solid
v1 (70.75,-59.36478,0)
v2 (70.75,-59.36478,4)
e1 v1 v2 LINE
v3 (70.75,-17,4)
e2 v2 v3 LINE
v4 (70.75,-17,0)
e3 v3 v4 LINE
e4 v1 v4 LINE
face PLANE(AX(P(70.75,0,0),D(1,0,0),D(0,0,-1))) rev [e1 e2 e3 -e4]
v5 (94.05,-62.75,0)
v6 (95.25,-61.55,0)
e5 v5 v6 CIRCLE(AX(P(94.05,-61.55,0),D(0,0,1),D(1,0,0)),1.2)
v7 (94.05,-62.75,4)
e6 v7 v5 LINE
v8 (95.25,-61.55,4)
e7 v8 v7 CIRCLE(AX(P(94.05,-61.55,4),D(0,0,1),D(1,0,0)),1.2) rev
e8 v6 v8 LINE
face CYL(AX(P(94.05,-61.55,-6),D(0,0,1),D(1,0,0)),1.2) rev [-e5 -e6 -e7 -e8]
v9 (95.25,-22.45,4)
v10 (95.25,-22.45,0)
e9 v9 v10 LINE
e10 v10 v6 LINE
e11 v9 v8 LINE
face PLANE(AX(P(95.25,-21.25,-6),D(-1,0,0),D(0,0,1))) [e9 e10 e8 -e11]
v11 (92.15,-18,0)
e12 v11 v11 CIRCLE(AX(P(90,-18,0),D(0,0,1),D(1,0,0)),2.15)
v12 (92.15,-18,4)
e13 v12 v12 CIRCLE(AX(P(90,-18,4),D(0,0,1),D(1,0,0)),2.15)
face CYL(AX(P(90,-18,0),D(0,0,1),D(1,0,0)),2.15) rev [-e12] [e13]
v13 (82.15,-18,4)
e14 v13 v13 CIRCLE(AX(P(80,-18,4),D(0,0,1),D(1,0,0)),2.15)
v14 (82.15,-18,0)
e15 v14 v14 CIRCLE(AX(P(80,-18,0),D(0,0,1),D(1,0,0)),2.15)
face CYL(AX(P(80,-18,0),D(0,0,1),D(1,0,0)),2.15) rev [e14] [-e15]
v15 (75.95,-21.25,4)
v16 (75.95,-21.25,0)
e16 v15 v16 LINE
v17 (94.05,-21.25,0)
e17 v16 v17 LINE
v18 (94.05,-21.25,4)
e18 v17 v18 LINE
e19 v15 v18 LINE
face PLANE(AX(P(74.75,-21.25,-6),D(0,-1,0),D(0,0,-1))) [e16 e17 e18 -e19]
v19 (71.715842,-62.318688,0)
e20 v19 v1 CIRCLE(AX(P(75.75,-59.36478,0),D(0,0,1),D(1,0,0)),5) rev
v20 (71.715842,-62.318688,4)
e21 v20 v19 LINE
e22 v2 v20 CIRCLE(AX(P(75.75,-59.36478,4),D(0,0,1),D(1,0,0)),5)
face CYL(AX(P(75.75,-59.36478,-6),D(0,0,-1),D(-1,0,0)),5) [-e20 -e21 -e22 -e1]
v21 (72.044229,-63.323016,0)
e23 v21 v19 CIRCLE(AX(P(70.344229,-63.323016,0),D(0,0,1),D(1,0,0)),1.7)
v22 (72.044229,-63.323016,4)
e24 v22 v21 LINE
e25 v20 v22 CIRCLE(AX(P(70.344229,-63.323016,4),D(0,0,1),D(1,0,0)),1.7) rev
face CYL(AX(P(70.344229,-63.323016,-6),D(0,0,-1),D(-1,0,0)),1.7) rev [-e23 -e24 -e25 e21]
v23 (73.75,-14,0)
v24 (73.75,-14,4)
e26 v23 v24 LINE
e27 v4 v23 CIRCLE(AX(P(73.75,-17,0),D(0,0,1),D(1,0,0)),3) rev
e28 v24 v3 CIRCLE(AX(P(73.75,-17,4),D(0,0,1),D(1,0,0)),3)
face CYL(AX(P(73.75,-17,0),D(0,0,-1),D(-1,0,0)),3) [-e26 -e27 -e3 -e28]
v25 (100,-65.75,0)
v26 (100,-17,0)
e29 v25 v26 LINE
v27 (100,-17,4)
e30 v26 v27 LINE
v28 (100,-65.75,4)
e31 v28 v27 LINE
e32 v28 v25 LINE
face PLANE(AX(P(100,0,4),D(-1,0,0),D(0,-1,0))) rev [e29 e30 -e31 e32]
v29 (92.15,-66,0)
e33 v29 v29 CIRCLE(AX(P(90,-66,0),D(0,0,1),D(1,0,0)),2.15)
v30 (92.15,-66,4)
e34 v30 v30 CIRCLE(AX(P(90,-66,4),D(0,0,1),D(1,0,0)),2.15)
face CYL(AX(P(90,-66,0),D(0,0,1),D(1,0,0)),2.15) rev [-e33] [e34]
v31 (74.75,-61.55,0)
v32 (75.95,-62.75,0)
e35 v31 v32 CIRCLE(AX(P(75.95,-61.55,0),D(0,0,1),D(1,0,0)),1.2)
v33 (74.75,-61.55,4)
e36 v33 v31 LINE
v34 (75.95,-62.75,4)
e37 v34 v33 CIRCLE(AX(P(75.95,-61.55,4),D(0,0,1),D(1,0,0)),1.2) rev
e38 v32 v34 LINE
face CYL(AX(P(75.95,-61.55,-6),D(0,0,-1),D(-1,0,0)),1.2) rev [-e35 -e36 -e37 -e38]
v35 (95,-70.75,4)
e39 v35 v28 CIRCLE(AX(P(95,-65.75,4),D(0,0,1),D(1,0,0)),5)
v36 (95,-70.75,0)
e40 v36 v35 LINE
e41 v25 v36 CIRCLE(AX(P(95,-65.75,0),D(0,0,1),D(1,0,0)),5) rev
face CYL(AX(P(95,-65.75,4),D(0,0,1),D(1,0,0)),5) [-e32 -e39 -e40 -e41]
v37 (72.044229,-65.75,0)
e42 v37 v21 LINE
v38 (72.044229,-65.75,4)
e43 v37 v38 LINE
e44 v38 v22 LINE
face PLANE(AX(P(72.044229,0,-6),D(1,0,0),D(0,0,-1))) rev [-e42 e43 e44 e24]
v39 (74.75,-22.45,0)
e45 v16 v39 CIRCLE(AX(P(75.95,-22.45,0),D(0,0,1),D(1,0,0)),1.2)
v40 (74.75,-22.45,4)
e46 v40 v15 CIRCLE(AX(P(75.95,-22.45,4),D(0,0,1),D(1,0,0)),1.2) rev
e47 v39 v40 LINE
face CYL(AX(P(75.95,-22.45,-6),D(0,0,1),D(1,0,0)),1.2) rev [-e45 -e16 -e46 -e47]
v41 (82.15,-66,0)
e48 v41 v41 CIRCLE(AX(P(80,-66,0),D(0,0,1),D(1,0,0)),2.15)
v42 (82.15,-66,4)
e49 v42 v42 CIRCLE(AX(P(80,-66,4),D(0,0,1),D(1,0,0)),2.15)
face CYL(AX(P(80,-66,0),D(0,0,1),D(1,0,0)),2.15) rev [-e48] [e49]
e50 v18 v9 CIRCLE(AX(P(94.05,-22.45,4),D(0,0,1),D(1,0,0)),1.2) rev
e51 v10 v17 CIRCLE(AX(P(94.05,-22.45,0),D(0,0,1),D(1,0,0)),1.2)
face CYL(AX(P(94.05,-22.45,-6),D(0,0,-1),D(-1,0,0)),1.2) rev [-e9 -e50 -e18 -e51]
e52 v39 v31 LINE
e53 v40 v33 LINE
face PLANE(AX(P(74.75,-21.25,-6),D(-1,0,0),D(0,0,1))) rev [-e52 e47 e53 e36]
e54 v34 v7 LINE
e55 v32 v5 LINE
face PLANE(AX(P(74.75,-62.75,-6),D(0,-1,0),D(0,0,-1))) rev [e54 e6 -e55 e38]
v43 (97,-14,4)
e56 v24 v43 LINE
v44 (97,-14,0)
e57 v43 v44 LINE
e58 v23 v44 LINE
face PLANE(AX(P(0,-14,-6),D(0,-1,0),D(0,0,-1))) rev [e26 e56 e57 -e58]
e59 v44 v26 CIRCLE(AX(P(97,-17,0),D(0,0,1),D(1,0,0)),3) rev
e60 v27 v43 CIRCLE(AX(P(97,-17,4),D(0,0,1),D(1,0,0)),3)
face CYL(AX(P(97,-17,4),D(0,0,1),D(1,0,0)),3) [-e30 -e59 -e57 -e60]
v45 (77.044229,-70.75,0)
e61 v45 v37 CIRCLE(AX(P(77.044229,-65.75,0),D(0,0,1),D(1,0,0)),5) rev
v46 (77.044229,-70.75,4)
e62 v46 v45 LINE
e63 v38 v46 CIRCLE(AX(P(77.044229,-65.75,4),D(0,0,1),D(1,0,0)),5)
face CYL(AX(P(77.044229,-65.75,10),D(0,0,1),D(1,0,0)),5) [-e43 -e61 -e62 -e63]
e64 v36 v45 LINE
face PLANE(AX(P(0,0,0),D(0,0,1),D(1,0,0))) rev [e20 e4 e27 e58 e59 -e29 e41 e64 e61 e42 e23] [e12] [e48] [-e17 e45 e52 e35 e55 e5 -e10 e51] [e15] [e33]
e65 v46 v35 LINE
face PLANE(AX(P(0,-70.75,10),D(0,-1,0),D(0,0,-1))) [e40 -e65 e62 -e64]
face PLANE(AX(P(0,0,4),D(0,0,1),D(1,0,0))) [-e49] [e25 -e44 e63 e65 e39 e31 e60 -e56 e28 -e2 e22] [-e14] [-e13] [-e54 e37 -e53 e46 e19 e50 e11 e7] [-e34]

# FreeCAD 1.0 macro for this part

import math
import FreeCAD as App
import Part
import Sketcher
from FreeCAD import Vector
Q = App.Units.Quantity


def edges_at(feature, points):
    """Names of the edges that pass closest to the given points."""
    edges = feature.Shape.Edges
    near = lambda p: min(range(len(edges)), key=lambda i: edges[i].distToShape(Part.Vertex(*p))[0])
    return sorted({f"Edge{near(p) + 1}" for p in points})

doc = App.newDocument("Part")
body = doc.addObject("PartDesign::Body", "Body")

sketch1 = body.newObject("Sketcher::SketchObject", "Sketch")
sketch1.AttachmentSupport = (doc.getObject("XY_Plane"), [""])
sketch1.MapMode = "FlatFace"
sketch1.addGeometry([
    Part.LineSegment(Vector(0, 0, 0), Vector(0, -100, 0)),
    Part.LineSegment(Vector(0, -100, 0), Vector(100, -100, 0)),
    Part.LineSegment(Vector(100, -100, 0), Vector(100, 0, 0)),
    Part.LineSegment(Vector(100, 0, 0), Vector(0, 0, 0)),
], False)
sketch1.addConstraint([
    Sketcher.Constraint("Coincident", 0, 2, 1, 1),
    Sketcher.Constraint("Coincident", 1, 2, 2, 1),
    Sketcher.Constraint("Coincident", 2, 2, 3, 1),
    Sketcher.Constraint("Coincident", 3, 2, 0, 1),
    Sketcher.Constraint("Vertical", 0),
    Sketcher.Constraint("Horizontal", 1),
    Sketcher.Constraint("Vertical", 2),
    Sketcher.Constraint("Horizontal", 3),
    Sketcher.Constraint("Coincident", 3, 2, -1, 1),
    Sketcher.Constraint("Equal", 3, 0),
    Sketcher.Constraint("DistanceX", 1, 1, 1, 2, Q("100 mm")),
])
pad1 = body.newObject("PartDesign::Pad", "Pad")
pad1.Profile = sketch1
pad1.Length = 4

sketch2 = body.newObject("Sketcher::SketchObject", "Sketch001")
sketch2.AttachmentSupport = (doc.getObject("XY_Plane"), [""])
sketch2.MapMode = "FlatFace"
sketch2.AttachmentOffset = App.Placement(Vector(0, 0, 4), App.Rotation())
sketch2.addGeometry([
    Part.Circle(Vector(80, -66, 0), Vector(0, 0, 1), 2.1),
    Part.Circle(Vector(90, -66, 0), Vector(0, 0, 1), 2.1),
    Part.Circle(Vector(90, -18, 0), Vector(0, 0, 1), 2.1),
    Part.Circle(Vector(80, -18, 0), Vector(0, 0, 1), 2.1),
], False)
sketch2.addConstraint([
    Sketcher.Constraint("Equal", 0, 1),
    Sketcher.Constraint("Equal", 1, 2),
    Sketcher.Constraint("Equal", 2, 3),
    Sketcher.Constraint("Horizontal", 0, 3, 1, 3),
    Sketcher.Constraint("Horizontal", 2, 3, 3, 3),
    Sketcher.Constraint("Vertical", 1, 3, 2, 3),
    Sketcher.Constraint("Vertical", 0, 3, 3, 3),
    Sketcher.Constraint("Diameter", 0, Q("4.3 mm")),
    Sketcher.Constraint("DistanceX", -1, 1, 0, 3, Q("80 mm")),
    Sketcher.Constraint("DistanceY", 0, 3, -1, 1, Q("66 mm")),
    Sketcher.Constraint("DistanceX", -1, 1, 1, 3, Q("90 mm")),
    Sketcher.Constraint("DistanceY", 2, 3, -1, 1, Q("18 mm")),
])
pocket1 = body.newObject("PartDesign::Pocket", "Pocket")
pocket1.Profile = sketch2
pocket1.Type = "ThroughAll"

sketch3 = body.newObject("Sketcher::SketchObject", "Sketch002")
sketch3.AttachmentSupport = (doc.getObject("XY_Plane"), [""])
sketch3.MapMode = "FlatFace"
sketch3.AttachmentOffset = App.Placement(Vector(0, 0, 4), App.Rotation())
sketch3.addGeometry([
    Part.Circle(Vector(73, -95, 0), Vector(0, 0, 1), 1.6),
    Part.Circle(Vector(73, -85, 0), Vector(0, 0, 1), 1.6),
    Part.Circle(Vector(85, -85, 0), Vector(0, 0, 1), 1.6),
    Part.Circle(Vector(85, -95, 0), Vector(0, 0, 1), 1.6),
], False)
sketch3.addConstraint([
    Sketcher.Constraint("Equal", 0, 1),
    Sketcher.Constraint("Equal", 1, 2),
    Sketcher.Constraint("Equal", 2, 3),
    Sketcher.Constraint("Horizontal", 1, 3, 2, 3),
    Sketcher.Constraint("Horizontal", 0, 3, 3, 3),
    Sketcher.Constraint("Vertical", 0, 3, 1, 3),
    Sketcher.Constraint("Vertical", 2, 3, 3, 3),
    Sketcher.Constraint("Diameter", 0, Q("3.3 mm")),
    Sketcher.Constraint("DistanceX", -1, 1, 0, 3, Q("73 mm")),
    Sketcher.Constraint("DistanceY", 0, 3, -1, 1, Q("95 mm")),
    Sketcher.Constraint("DistanceY", 1, 3, -1, 1, Q("85 mm")),
    Sketcher.Constraint("DistanceX", -1, 1, 2, 3, Q("85 mm")),
])
pocket2 = body.newObject("PartDesign::Pocket", "Pocket001")
pocket2.Profile = sketch3
pocket2.Type = "ThroughAll"

sketch4 = body.newObject("Sketcher::SketchObject", "Sketch003")
sketch4.AttachmentSupport = (doc.getObject("XY_Plane"), [""])
sketch4.MapMode = "FlatFace"
sketch4.AttachmentOffset = App.Placement(Vector(0, 0, 4), App.Rotation())
sketch4.addGeometry([
    Part.ArcOfCircle(Part.Circle(Vector(71.5, -100, 0), Vector(0, 0, 1), 9.5), math.radians(0), math.radians(180)),
    Part.LineSegment(Vector(62, -100, 0), Vector(81, -100, 0)),
    Part.Circle(Vector(73, -95, 0), Vector(0, 0, 1), 1.6),
], False)
sketch4.addConstraint([
    Sketcher.Constraint("Coincident", 0, 1, 1, 2),
    Sketcher.Constraint("Coincident", 1, 1, 0, 2),
    Sketcher.Constraint("Horizontal", 1),
    Sketcher.Constraint("Diameter", 2, Q("3.3 mm")),
    Sketcher.Constraint("Radius", 0, Q("9.5 mm")),
    Sketcher.Constraint("DistanceY", 0, 3, -1, 1, Q("100 mm")),
    Sketcher.Constraint("DistanceX", -1, 1, 2, 3, Q("73 mm")),
    Sketcher.Constraint("DistanceY", 2, 3, -1, 1, Q("95 mm")),
    Sketcher.Constraint("DistanceX", -1, 1, 0, 1, Q("81 mm")),
    Sketcher.Constraint("DistanceY", 0, 1, -1, 1, Q("100 mm")),
])
pocket3 = body.newObject("PartDesign::Pocket", "Pocket002")
pocket3.Profile = sketch4
pocket3.Type = "ThroughAll"

sketch5 = body.newObject("Sketcher::SketchObject", "Sketch004")
sketch5.AttachmentSupport = (doc.getObject("XY_Plane"), [""])
sketch5.MapMode = "FlatFace"
sketch5.AttachmentOffset = App.Placement(Vector(0, 0, 4), App.Rotation())
sketch5.addGeometry([
    Part.LineSegment(Vector(75, -21, 0), Vector(75, -63, 0)),
    Part.LineSegment(Vector(75, -63, 0), Vector(95, -63, 0)),
    Part.LineSegment(Vector(95, -63, 0), Vector(95, -21, 0)),
    Part.LineSegment(Vector(95, -21, 0), Vector(75, -21, 0)),
], False)
sketch5.addConstraint([
    Sketcher.Constraint("Coincident", 0, 2, 1, 1),
    Sketcher.Constraint("Coincident", 1, 2, 2, 1),
    Sketcher.Constraint("Coincident", 2, 2, 3, 1),
    Sketcher.Constraint("Coincident", 3, 2, 0, 1),
    Sketcher.Constraint("Vertical", 0),
    Sketcher.Constraint("Horizontal", 1),
    Sketcher.Constraint("Vertical", 2),
    Sketcher.Constraint("Horizontal", 3),
    Sketcher.Constraint("DistanceX", 1, 1, 1, 2, Q("20.5 mm")),
    Sketcher.Constraint("DistanceY", 0, 2, 0, 1, Q("41.5 mm")),
    Sketcher.Constraint("DistanceX", -1, 1, 0, 2, Q("74.75 mm")),
    Sketcher.Constraint("DistanceY", 0, 2, -1, 1, Q("62.75 mm")),
])
pocket4 = body.newObject("PartDesign::Pocket", "Pocket003")
pocket4.Profile = sketch5
pocket4.Length = 10

sketch6 = body.newObject("Sketcher::SketchObject", "Sketch005")
sketch6.AttachmentSupport = (doc.getObject("XY_Plane"), [""])
sketch6.MapMode = "FlatFace"
sketch6.AttachmentOffset = App.Placement(Vector(0, 0, 4), App.Rotation())
sketch6.addGeometry([
    Part.LineSegment(Vector(0, 0, 0), Vector(0, -100, 0)),
    Part.LineSegment(Vector(0, -100, 0), Vector(55, -100, 0)),
    Part.LineSegment(Vector(55, -100, 0), Vector(55, 0, 0)),
    Part.LineSegment(Vector(55, 0, 0), Vector(0, 0, 0)),
], False)
sketch6.addConstraint([
    Sketcher.Constraint("Coincident", 0, 2, 1, 1),
    Sketcher.Constraint("Coincident", 1, 2, 2, 1),
    Sketcher.Constraint("Coincident", 2, 2, 3, 1),
    Sketcher.Constraint("Coincident", 3, 2, 0, 1),
    Sketcher.Constraint("Vertical", 0),
    Sketcher.Constraint("Horizontal", 1),
    Sketcher.Constraint("Vertical", 2),
    Sketcher.Constraint("Horizontal", 3),
    Sketcher.Constraint("Coincident", 3, 2, -1, 1),
    Sketcher.Constraint("DistanceX", 1, 1, 1, 2, Q("55 mm")),
    Sketcher.Constraint("DistanceY", 0, 2, 0, 1, Q("100 mm")),
])
pocket5 = body.newObject("PartDesign::Pocket", "Pocket004")
pocket5.Profile = sketch6
pocket5.Length = 10
doc.recompute()

fillet = body.newObject("PartDesign::Fillet", "Fillet")
fillet.Base = (pocket5, edges_at(pocket5, [
    (95.25, -62.75, 2),
    (74.75, -62.75, 2),
    (74.75, -21.25, 2),
    (95.25, -21.25, 2),
]))
fillet.Radius = 1.2

sketch7 = body.newObject("Sketcher::SketchObject", "Sketch006")
sketch7.AttachmentSupport = (doc.getObject("XY_Plane"), [""])
sketch7.MapMode = "FlatFace"
sketch7.AttachmentOffset = App.Placement(Vector(0, 0, 4), App.Rotation())
sketch7.addGeometry(Part.Circle(Vector(59, -85, 0), Vector(0, 0, 1), 1.6), False)
sketch7.addConstraint([
    Sketcher.Constraint("Diameter", 0, Q("3.3 mm")),
    Sketcher.Constraint("DistanceX", -1, 1, 0, 3, Q("59 mm")),
    Sketcher.Constraint("DistanceY", 0, 3, -1, 1, Q("85 mm")),
])
pocket6 = body.newObject("PartDesign::Pocket", "Pocket005")
pocket6.Profile = sketch7
pocket6.Type = "ThroughAll"

sketch8 = body.newObject("Sketcher::SketchObject", "Sketch007")
sketch8.AttachmentSupport = (doc.getObject("XY_Plane"), [""])
sketch8.MapMode = "FlatFace"
sketch8.AttachmentOffset = App.Placement(Vector(0, 0, 4), App.Rotation())
sketch8.addGeometry([
    Part.LineSegment(Vector(72, -90, 0), Vector(55, -90, 0)),
    Part.LineSegment(Vector(55, -90, 0), Vector(55, -100, 0)),
    Part.LineSegment(Vector(55, -100, 0), Vector(62, -100, 0)),
    Part.ArcOfCircle(Part.Circle(Vector(72, -100, 0), Vector(0, 0, 1), 10), math.radians(90), math.radians(180)),
    Part.LineSegment(Vector(55, 0, 0), Vector(55, -78, 0)),
    Part.LineSegment(Vector(55, -78, 0), Vector(71, -78, 0)),
    Part.LineSegment(Vector(71, -78, 0), Vector(71, 0, 0)),
    Part.LineSegment(Vector(71, 0, 0), Vector(55, 0, 0)),
], False)
sketch8.addConstraint([
    Sketcher.Constraint("Coincident", 0, 2, 1, 1),
    Sketcher.Constraint("Coincident", 1, 2, 2, 1),
    Sketcher.Constraint("Coincident", 2, 2, 3, 2),
    Sketcher.Constraint("Tangent", 3, 1, 0, 1),
    Sketcher.Constraint("Coincident", 4, 2, 5, 1),
    Sketcher.Constraint("Coincident", 5, 2, 6, 1),
    Sketcher.Constraint("Coincident", 6, 2, 7, 1),
    Sketcher.Constraint("Coincident", 7, 2, 4, 1),
    Sketcher.Constraint("Horizontal", 0),
    Sketcher.Constraint("Vertical", 1),
    Sketcher.Constraint("Horizontal", 2),
    Sketcher.Constraint("Vertical", 4),
    Sketcher.Constraint("Horizontal", 5),
    Sketcher.Constraint("Vertical", 6),
    Sketcher.Constraint("Horizontal", 7),
    Sketcher.Constraint("PointOnObject", 6, 2, -1),
    Sketcher.Constraint("Horizontal", 3, 3, 1, 2),
    Sketcher.Constraint("Vertical", 1, 2, 4, 2),
    Sketcher.Constraint("Radius", 3, Q("9.5 mm")),
    Sketcher.Constraint("DistanceX", 2, 1, 2, 2, Q("7 mm")),
    Sketcher.Constraint("DistanceY", 4, 2, 4, 1, Q("78.5 mm")),
    Sketcher.Constraint("DistanceY", 3, 3, -1, 1, Q("100 mm")),
    Sketcher.Constraint("DistanceX", -1, 1, 0, 2, Q("55 mm")),
    Sketcher.Constraint("DistanceX", 5, 1, 5, 2, Q("15.75 mm")),
])
pocket7 = body.newObject("PartDesign::Pocket", "Pocket006")
pocket7.Profile = sketch8
pocket7.Type = "ThroughAll"

sketch9 = body.newObject("Sketcher::SketchObject", "Sketch008")
sketch9.AttachmentSupport = (doc.getObject("XY_Plane"), [""])
sketch9.MapMode = "FlatFace"
sketch9.AttachmentOffset = App.Placement(Vector(0, 0, 4), App.Rotation())
sketch9.addGeometry([
    Part.LineSegment(Vector(100, -87.5, 0), Vector(55, -87.5, 0)),
    Part.LineSegment(Vector(55, -87.5, 0), Vector(55, -90.5, 0)),
    Part.LineSegment(Vector(55, -90.5, 0), Vector(71.5, -90.5, 0)),
    Part.ArcOfCircle(Part.Circle(Vector(71.5, -100, 0), Vector(0, 0, 1), 9.5), math.radians(0), math.radians(90)),
    Part.LineSegment(Vector(81, -100, 0), Vector(100, -100, 0)),
    Part.LineSegment(Vector(100, -100, 0), Vector(100, -87.5, 0)),
], False)
sketch9.addConstraint([
    Sketcher.Constraint("Coincident", 0, 2, 1, 1),
    Sketcher.Constraint("Coincident", 1, 2, 2, 1),
    Sketcher.Constraint("Tangent", 2, 2, 3, 2),
    Sketcher.Constraint("Coincident", 3, 1, 4, 1),
    Sketcher.Constraint("Coincident", 4, 2, 5, 1),
    Sketcher.Constraint("Coincident", 5, 2, 0, 1),
    Sketcher.Constraint("Horizontal", 0),
    Sketcher.Constraint("Vertical", 1),
    Sketcher.Constraint("Horizontal", 2),
    Sketcher.Constraint("Horizontal", 4),
    Sketcher.Constraint("Vertical", 5),
    Sketcher.Constraint("Radius", 3, Q("9.5 mm")),
    Sketcher.Constraint("DistanceX", 0, 2, 0, 1, Q("45 mm")),
    Sketcher.Constraint("DistanceX", 4, 1, 4, 2, Q("19 mm")),
    Sketcher.Constraint("DistanceY", 1, 2, 1, 1, Q("3 mm")),
    Sketcher.Constraint("DistanceY", 5, 1, 5, 2, Q("12.5 mm")),
    Sketcher.Constraint("DistanceY", 3, 3, -1, 1, Q("100 mm")),
    Sketcher.Constraint("DistanceX", -1, 1, 0, 2, Q("55 mm")),
])
pocket8 = body.newObject("PartDesign::Pocket", "Pocket007")
pocket8.Profile = sketch9
pocket8.Length = 10
doc.recompute()

fillet2 = body.newObject("PartDesign::Fillet", "Fillet001")
fillet2.Base = (pocket8, edges_at(pocket8, [(100, -87.5, 2), (55, -87.5, 2)]))
fillet2.Radius = 3

sketch10 = body.newObject("Sketcher::SketchObject", "Sketch009")
sketch10.AttachmentSupport = (doc.getObject("XY_Plane"), [""])
sketch10.MapMode = "FlatFace"
sketch10.AttachmentOffset = App.Placement(Vector(0, 0, 4), App.Rotation())
sketch10.addGeometry([
    Part.LineSegment(Vector(71, 0, 0), Vector(71, -14, 0)),
    Part.LineSegment(Vector(71, -14, 0), Vector(100, -14, 0)),
    Part.LineSegment(Vector(100, -14, 0), Vector(100, 0, 0)),
    Part.LineSegment(Vector(100, 0, 0), Vector(71, 0, 0)),
], False)
sketch10.addConstraint([
    Sketcher.Constraint("Coincident", 0, 2, 1, 1),
    Sketcher.Constraint("Coincident", 1, 2, 2, 1),
    Sketcher.Constraint("Coincident", 2, 2, 3, 1),
    Sketcher.Constraint("Coincident", 3, 2, 0, 1),
    Sketcher.Constraint("Vertical", 0),
    Sketcher.Constraint("Horizontal", 1),
    Sketcher.Constraint("Vertical", 2),
    Sketcher.Constraint("Horizontal", 3),
    Sketcher.Constraint("PointOnObject", 2, 2, -1),
    Sketcher.Constraint("DistanceY", 0, 2, 0, 1, Q("14 mm")),
    Sketcher.Constraint("DistanceX", -1, 1, 1, 2, Q("100 mm")),
    Sketcher.Constraint("DistanceX", 1, 1, 1, 2, Q("29.25 mm")),
])
pocket9 = body.newObject("PartDesign::Pocket", "Pocket008")
pocket9.Profile = sketch10
pocket9.Length = 10
doc.recompute()

fillet3 = body.newObject("PartDesign::Fillet", "Fillet002")
fillet3.Base = (pocket9, edges_at(pocket9, [(70.75, -14, 2), (100, -14, 2)]))
fillet3.Radius = 3

sketch11 = body.newObject("Sketcher::SketchObject", "Sketch010")
sketch11.AttachmentSupport = (doc.getObject("XY_Plane"), [""])
sketch11.MapMode = "FlatFace"
sketch11.AttachmentOffset = App.Placement(Vector(0, 0, 4), App.Rotation())
sketch11.addGeometry([
    Part.LineSegment(Vector(64.3, -87.5, 0), Vector(81.7, -87.5, 0)),
    Part.ArcOfCircle(Part.Circle(Vector(73, -92.5, 0), Vector(0, 0, 1), 10), math.radians(30), math.radians(150)),
    Part.Circle(Vector(73, -85, 0), Vector(0, 0, 1), 1.6),
], False)
sketch11.addConstraint([
    Sketcher.Constraint("Coincident", 0, 1, 1, 2),
    Sketcher.Constraint("Coincident", 1, 1, 0, 2),
    Sketcher.Constraint("Horizontal", 0),
    Sketcher.Constraint("Vertical", 1, 3, 2, 3),
    Sketcher.Constraint("Radius", 1, Q("10 mm")),
    Sketcher.Constraint("Diameter", 2, Q("3.3 mm")),
    Sketcher.Constraint("DistanceX", -1, 1, 1, 3, Q("73 mm")),
    Sketcher.Constraint("DistanceY", 2, 3, -1, 1, Q("85 mm")),
    Sketcher.Constraint("DistanceY", 1, 3, 0, 1, Q("5 mm")),
    Sketcher.Constraint("DistanceY", 1, 3, -1, 1, Q("92.5 mm")),
])
pocket10 = body.newObject("PartDesign::Pocket", "Pocket009")
pocket10.Profile = sketch11
pocket10.Length = 10
doc.recompute()

fillet4 = body.newObject("PartDesign::Fillet", "Fillet003")
fillet4.Base = (pocket10, edges_at(pocket10, [(64.34, -87.5, 2), (81.66, -87.5, 2)]))
fillet4.Radius = 3

sketch12 = body.newObject("Sketcher::SketchObject", "Sketch011")
sketch12.AttachmentSupport = (doc.getObject("XY_Plane"), [""])
sketch12.MapMode = "FlatFace"
sketch12.AttachmentOffset = App.Placement(Vector(0, 0, 4), App.Rotation())
sketch12.addGeometry([
    Part.LineSegment(Vector(71, -51, 0), Vector(55, -78, 0)),
    Part.LineSegment(Vector(55, -78, 0), Vector(71, -78, 0)),
    Part.LineSegment(Vector(71, -78, 0), Vector(71, -51, 0)),
], False)
sketch12.addConstraint([
    Sketcher.Constraint("Coincident", 0, 2, 1, 1),
    Sketcher.Constraint("Coincident", 1, 2, 2, 1),
    Sketcher.Constraint("Coincident", 2, 2, 0, 1),
    Sketcher.Constraint("Horizontal", 1),
    Sketcher.Constraint("Vertical", 2),
    Sketcher.Constraint("Angle", 0, Q("-120 deg")),
    Sketcher.Constraint("DistanceX", -1, 1, 0, 2, Q("55 mm")),
    Sketcher.Constraint("Distance", 0, Q("31.5 mm")),
    Sketcher.Constraint("DistanceY", 0, 2, -1, 1, Q("78.5 mm")),
])
pad2 = body.newObject("PartDesign::Pad", "Pad001")
pad2.Profile = sketch12
pad2.Length = 4
pad2.Reversed = True
doc.recompute()

fillet5 = body.newObject("PartDesign::Fillet", "Fillet004")
fillet5.Base = (pad2, edges_at(pad2, [(55, -78.5, 2), (70.75, -51.22, 2)]))
fillet5.Radius = 5

sketch13 = body.newObject("Sketcher::SketchObject", "Sketch012")
sketch13.AttachmentSupport = (doc.getObject("XY_Plane"), [""])
sketch13.MapMode = "FlatFace"
sketch13.AttachmentOffset = App.Placement(Vector(0, 0, 4), App.Rotation())
sketch13.addGeometry([
    Part.LineSegment(Vector(72, -79, 0), Vector(72, -57, 0)),
    Part.LineSegment(Vector(72, -57, 0), Vector(59, -79, 0)),
    Part.LineSegment(Vector(59, -79, 0), Vector(72, -79, 0)),
], False)
sketch13.addConstraint([
    Sketcher.Constraint("Coincident", 0, 2, 1, 1),
    Sketcher.Constraint("Coincident", 1, 2, 2, 1),
    Sketcher.Constraint("Coincident", 2, 2, 0, 1),
    Sketcher.Constraint("Vertical", 0),
    Sketcher.Constraint("Horizontal", 2),
    Sketcher.Constraint("Angle", 1, Q("-120 deg")),
    Sketcher.Constraint("Distance", 1, Q("25.820508 mm")),
    Sketcher.Constraint("DistanceX", -1, 1, 0, 2, Q("72.044229 mm")),
    Sketcher.Constraint("DistanceY", 0, 2, -1, 1, Q("56.97853 mm")),
])
pocket11 = body.newObject("PartDesign::Pocket", "Pocket010")
pocket11.Profile = sketch13
pocket11.Length = 10
doc.recompute()

fillet6 = body.newObject("PartDesign::Fillet", "Fillet005")
fillet6.Base = (pocket11, edges_at(pocket11, [(72.044, -79.34, 2), (59.134, -79.34, 2), (72.044, -56.979, 2)]))
fillet6.Radius = 1.7

sketch14 = body.newObject("Sketcher::SketchObject", "Sketch013")
sketch14.AttachmentSupport = (doc.getObject("XY_Plane"), [""])
sketch14.MapMode = "FlatFace"
sketch14.addGeometry([
    Part.LineSegment(Vector(55.7, -70.8, 0), Vector(55.7, -49.9, 0)),
    Part.LineSegment(Vector(55.7, -49.9, 0), Vector(70.8, -49.9, 0)),
    Part.LineSegment(Vector(70.8, -49.9, 0), Vector(70.8, -61.7, 0)),
    Part.ArcOfCircle(Part.Circle(Vector(70.3, -63.3, 0), Vector(0, 0, 1), 1.7), math.radians(76), math.radians(150)),
    Part.LineSegment(Vector(68.9, -62.5, 0), Vector(64.1, -70.8, 0)),
    Part.LineSegment(Vector(64.1, -70.8, 0), Vector(60.6, -76.8, 0)),
    Part.ArcOfCircle(Part.Circle(Vector(62.1, -77.6, 0), Vector(0, 0, 1), 1.7), math.radians(150), math.radians(270)),
    Part.LineSegment(Vector(62.1, -79.3, 0), Vector(70.3, -79.3, 0)),
    Part.ArcOfCircle(Part.Circle(Vector(70.3, -77.6, 0), Vector(0, 0, 1), 1.7), math.radians(-90), math.radians(0)),
    Part.LineSegment(Vector(72, -77.6, 0), Vector(72, -70.8, 0)),
    Part.LineSegment(Vector(72, -70.8, 0), Vector(100, -70.8, 0)),
    Part.LineSegment(Vector(100, -70.8, 0), Vector(100, -90.1, 0)),
    Part.LineSegment(Vector(100, -90.1, 0), Vector(41.7, -90.1, 0)),
    Part.LineSegment(Vector(41.7, -90.1, 0), Vector(41.7, -70.8, 0)),
    Part.LineSegment(Vector(41.7, -70.8, 0), Vector(55.7, -70.8, 0)),
    Part.Circle(Vector(59, -85, 0), Vector(0, 0, 1), 1.6),
    Part.Circle(Vector(85, -85, 0), Vector(0, 0, 1), 1.6),
], False)
sketch14.addConstraint([
    Sketcher.Constraint("Coincident", 0, 2, 1, 1),
    Sketcher.Constraint("Coincident", 1, 2, 2, 1),
    Sketcher.Constraint("Coincident", 2, 2, 3, 1),
    Sketcher.Constraint("Tangent", 3, 2, 4, 1),
    Sketcher.Constraint("Coincident", 4, 2, 5, 1),
    Sketcher.Constraint("Tangent", 5, 2, 6, 1),
    Sketcher.Constraint("Tangent", 6, 2, 7, 1),
    Sketcher.Constraint("Tangent", 7, 2, 8, 1),
    Sketcher.Constraint("Tangent", 8, 2, 9, 1),
    Sketcher.Constraint("Coincident", 9, 2, 10, 1),
    Sketcher.Constraint("Coincident", 10, 2, 11, 1),
    Sketcher.Constraint("Coincident", 11, 2, 12, 1),
    Sketcher.Constraint("Coincident", 12, 2, 13, 1),
    Sketcher.Constraint("Coincident", 13, 2, 14, 1),
    Sketcher.Constraint("Coincident", 14, 2, 0, 1),
    Sketcher.Constraint("Vertical", 0),
    Sketcher.Constraint("Horizontal", 1),
    Sketcher.Constraint("Vertical", 2),
    Sketcher.Constraint("Horizontal", 7),
    Sketcher.Constraint("Vertical", 9),
    Sketcher.Constraint("Horizontal", 10),
    Sketcher.Constraint("Vertical", 11),
    Sketcher.Constraint("Horizontal", 12),
    Sketcher.Constraint("Vertical", 13),
    Sketcher.Constraint("Horizontal", 14),
    Sketcher.Constraint("Equal", 3, 6),
    Sketcher.Constraint("Equal", 6, 8),
    Sketcher.Constraint("Equal", 15, 16),
    Sketcher.Constraint("Parallel", 4, 5),
    Sketcher.Constraint("Horizontal", 15, 3, 16, 3),
    Sketcher.Constraint("Horizontal", 4, 2, 9, 2),
    Sketcher.Constraint("Horizontal", 10, 2, 13, 2),
    Sketcher.Constraint("Vertical", 3, 3, 8, 3),
    Sketcher.Constraint("Diameter", 15, Q("3.3 mm")),
    Sketcher.Constraint("Radius", 3, Q("1.7 mm")),
    Sketcher.Constraint("Angle", 4, Q("-120 deg")),
    Sketcher.Constraint("DistanceX", -1, 1, 15, 3, Q("59 mm")),
    Sketcher.Constraint("DistanceY", 15, 3, -1, 1, Q("85 mm")),
    Sketcher.Constraint("DistanceX", -1, 1, 16, 3, Q("85 mm")),
    Sketcher.Constraint("DistanceX", -1, 1, 10, 2, Q("100 mm")),
    Sketcher.Constraint("DistanceX", -1, 1, 1, 2, Q("70.75 mm")),
    Sketcher.Constraint("DistanceY", 4, 2, -1, 1, Q("70.75 mm")),
    Sketcher.Constraint("DistanceX", 12, 2, 12, 1, Q("58.341601 mm")),
    Sketcher.Constraint("DistanceY", 2, 2, 2, 1, Q("11.791699 mm")),
    Sketcher.Constraint("DistanceX", 10, 1, 10, 2, Q("27.955771 mm")),
    Sketcher.Constraint("DistanceY", 11, 2, 11, 1, Q("19.328728 mm")),
    Sketcher.Constraint("DistanceX", 1, 1, 1, 2, Q("15.082447 mm")),
    Sketcher.Constraint("DistanceX", 7, 1, 7, 2, Q("8.265768 mm")),
    Sketcher.Constraint("DistanceY", 0, 1, 0, 2, Q("20.869546 mm")),
])
pocket12 = body.newObject("PartDesign::Pocket", "Pocket011")
pocket12.Profile = sketch14
pocket12.Length = 10
pocket12.Reversed = True
doc.recompute()

fillet7 = body.newObject("PartDesign::Fillet", "Fillet006")
fillet7.Base = (pocket12, edges_at(pocket12, [(70.75, -61.672, 2), (100, -70.75, 2), (72.044, -70.75, 2)]))
fillet7.Radius = 5

doc.recompute()
